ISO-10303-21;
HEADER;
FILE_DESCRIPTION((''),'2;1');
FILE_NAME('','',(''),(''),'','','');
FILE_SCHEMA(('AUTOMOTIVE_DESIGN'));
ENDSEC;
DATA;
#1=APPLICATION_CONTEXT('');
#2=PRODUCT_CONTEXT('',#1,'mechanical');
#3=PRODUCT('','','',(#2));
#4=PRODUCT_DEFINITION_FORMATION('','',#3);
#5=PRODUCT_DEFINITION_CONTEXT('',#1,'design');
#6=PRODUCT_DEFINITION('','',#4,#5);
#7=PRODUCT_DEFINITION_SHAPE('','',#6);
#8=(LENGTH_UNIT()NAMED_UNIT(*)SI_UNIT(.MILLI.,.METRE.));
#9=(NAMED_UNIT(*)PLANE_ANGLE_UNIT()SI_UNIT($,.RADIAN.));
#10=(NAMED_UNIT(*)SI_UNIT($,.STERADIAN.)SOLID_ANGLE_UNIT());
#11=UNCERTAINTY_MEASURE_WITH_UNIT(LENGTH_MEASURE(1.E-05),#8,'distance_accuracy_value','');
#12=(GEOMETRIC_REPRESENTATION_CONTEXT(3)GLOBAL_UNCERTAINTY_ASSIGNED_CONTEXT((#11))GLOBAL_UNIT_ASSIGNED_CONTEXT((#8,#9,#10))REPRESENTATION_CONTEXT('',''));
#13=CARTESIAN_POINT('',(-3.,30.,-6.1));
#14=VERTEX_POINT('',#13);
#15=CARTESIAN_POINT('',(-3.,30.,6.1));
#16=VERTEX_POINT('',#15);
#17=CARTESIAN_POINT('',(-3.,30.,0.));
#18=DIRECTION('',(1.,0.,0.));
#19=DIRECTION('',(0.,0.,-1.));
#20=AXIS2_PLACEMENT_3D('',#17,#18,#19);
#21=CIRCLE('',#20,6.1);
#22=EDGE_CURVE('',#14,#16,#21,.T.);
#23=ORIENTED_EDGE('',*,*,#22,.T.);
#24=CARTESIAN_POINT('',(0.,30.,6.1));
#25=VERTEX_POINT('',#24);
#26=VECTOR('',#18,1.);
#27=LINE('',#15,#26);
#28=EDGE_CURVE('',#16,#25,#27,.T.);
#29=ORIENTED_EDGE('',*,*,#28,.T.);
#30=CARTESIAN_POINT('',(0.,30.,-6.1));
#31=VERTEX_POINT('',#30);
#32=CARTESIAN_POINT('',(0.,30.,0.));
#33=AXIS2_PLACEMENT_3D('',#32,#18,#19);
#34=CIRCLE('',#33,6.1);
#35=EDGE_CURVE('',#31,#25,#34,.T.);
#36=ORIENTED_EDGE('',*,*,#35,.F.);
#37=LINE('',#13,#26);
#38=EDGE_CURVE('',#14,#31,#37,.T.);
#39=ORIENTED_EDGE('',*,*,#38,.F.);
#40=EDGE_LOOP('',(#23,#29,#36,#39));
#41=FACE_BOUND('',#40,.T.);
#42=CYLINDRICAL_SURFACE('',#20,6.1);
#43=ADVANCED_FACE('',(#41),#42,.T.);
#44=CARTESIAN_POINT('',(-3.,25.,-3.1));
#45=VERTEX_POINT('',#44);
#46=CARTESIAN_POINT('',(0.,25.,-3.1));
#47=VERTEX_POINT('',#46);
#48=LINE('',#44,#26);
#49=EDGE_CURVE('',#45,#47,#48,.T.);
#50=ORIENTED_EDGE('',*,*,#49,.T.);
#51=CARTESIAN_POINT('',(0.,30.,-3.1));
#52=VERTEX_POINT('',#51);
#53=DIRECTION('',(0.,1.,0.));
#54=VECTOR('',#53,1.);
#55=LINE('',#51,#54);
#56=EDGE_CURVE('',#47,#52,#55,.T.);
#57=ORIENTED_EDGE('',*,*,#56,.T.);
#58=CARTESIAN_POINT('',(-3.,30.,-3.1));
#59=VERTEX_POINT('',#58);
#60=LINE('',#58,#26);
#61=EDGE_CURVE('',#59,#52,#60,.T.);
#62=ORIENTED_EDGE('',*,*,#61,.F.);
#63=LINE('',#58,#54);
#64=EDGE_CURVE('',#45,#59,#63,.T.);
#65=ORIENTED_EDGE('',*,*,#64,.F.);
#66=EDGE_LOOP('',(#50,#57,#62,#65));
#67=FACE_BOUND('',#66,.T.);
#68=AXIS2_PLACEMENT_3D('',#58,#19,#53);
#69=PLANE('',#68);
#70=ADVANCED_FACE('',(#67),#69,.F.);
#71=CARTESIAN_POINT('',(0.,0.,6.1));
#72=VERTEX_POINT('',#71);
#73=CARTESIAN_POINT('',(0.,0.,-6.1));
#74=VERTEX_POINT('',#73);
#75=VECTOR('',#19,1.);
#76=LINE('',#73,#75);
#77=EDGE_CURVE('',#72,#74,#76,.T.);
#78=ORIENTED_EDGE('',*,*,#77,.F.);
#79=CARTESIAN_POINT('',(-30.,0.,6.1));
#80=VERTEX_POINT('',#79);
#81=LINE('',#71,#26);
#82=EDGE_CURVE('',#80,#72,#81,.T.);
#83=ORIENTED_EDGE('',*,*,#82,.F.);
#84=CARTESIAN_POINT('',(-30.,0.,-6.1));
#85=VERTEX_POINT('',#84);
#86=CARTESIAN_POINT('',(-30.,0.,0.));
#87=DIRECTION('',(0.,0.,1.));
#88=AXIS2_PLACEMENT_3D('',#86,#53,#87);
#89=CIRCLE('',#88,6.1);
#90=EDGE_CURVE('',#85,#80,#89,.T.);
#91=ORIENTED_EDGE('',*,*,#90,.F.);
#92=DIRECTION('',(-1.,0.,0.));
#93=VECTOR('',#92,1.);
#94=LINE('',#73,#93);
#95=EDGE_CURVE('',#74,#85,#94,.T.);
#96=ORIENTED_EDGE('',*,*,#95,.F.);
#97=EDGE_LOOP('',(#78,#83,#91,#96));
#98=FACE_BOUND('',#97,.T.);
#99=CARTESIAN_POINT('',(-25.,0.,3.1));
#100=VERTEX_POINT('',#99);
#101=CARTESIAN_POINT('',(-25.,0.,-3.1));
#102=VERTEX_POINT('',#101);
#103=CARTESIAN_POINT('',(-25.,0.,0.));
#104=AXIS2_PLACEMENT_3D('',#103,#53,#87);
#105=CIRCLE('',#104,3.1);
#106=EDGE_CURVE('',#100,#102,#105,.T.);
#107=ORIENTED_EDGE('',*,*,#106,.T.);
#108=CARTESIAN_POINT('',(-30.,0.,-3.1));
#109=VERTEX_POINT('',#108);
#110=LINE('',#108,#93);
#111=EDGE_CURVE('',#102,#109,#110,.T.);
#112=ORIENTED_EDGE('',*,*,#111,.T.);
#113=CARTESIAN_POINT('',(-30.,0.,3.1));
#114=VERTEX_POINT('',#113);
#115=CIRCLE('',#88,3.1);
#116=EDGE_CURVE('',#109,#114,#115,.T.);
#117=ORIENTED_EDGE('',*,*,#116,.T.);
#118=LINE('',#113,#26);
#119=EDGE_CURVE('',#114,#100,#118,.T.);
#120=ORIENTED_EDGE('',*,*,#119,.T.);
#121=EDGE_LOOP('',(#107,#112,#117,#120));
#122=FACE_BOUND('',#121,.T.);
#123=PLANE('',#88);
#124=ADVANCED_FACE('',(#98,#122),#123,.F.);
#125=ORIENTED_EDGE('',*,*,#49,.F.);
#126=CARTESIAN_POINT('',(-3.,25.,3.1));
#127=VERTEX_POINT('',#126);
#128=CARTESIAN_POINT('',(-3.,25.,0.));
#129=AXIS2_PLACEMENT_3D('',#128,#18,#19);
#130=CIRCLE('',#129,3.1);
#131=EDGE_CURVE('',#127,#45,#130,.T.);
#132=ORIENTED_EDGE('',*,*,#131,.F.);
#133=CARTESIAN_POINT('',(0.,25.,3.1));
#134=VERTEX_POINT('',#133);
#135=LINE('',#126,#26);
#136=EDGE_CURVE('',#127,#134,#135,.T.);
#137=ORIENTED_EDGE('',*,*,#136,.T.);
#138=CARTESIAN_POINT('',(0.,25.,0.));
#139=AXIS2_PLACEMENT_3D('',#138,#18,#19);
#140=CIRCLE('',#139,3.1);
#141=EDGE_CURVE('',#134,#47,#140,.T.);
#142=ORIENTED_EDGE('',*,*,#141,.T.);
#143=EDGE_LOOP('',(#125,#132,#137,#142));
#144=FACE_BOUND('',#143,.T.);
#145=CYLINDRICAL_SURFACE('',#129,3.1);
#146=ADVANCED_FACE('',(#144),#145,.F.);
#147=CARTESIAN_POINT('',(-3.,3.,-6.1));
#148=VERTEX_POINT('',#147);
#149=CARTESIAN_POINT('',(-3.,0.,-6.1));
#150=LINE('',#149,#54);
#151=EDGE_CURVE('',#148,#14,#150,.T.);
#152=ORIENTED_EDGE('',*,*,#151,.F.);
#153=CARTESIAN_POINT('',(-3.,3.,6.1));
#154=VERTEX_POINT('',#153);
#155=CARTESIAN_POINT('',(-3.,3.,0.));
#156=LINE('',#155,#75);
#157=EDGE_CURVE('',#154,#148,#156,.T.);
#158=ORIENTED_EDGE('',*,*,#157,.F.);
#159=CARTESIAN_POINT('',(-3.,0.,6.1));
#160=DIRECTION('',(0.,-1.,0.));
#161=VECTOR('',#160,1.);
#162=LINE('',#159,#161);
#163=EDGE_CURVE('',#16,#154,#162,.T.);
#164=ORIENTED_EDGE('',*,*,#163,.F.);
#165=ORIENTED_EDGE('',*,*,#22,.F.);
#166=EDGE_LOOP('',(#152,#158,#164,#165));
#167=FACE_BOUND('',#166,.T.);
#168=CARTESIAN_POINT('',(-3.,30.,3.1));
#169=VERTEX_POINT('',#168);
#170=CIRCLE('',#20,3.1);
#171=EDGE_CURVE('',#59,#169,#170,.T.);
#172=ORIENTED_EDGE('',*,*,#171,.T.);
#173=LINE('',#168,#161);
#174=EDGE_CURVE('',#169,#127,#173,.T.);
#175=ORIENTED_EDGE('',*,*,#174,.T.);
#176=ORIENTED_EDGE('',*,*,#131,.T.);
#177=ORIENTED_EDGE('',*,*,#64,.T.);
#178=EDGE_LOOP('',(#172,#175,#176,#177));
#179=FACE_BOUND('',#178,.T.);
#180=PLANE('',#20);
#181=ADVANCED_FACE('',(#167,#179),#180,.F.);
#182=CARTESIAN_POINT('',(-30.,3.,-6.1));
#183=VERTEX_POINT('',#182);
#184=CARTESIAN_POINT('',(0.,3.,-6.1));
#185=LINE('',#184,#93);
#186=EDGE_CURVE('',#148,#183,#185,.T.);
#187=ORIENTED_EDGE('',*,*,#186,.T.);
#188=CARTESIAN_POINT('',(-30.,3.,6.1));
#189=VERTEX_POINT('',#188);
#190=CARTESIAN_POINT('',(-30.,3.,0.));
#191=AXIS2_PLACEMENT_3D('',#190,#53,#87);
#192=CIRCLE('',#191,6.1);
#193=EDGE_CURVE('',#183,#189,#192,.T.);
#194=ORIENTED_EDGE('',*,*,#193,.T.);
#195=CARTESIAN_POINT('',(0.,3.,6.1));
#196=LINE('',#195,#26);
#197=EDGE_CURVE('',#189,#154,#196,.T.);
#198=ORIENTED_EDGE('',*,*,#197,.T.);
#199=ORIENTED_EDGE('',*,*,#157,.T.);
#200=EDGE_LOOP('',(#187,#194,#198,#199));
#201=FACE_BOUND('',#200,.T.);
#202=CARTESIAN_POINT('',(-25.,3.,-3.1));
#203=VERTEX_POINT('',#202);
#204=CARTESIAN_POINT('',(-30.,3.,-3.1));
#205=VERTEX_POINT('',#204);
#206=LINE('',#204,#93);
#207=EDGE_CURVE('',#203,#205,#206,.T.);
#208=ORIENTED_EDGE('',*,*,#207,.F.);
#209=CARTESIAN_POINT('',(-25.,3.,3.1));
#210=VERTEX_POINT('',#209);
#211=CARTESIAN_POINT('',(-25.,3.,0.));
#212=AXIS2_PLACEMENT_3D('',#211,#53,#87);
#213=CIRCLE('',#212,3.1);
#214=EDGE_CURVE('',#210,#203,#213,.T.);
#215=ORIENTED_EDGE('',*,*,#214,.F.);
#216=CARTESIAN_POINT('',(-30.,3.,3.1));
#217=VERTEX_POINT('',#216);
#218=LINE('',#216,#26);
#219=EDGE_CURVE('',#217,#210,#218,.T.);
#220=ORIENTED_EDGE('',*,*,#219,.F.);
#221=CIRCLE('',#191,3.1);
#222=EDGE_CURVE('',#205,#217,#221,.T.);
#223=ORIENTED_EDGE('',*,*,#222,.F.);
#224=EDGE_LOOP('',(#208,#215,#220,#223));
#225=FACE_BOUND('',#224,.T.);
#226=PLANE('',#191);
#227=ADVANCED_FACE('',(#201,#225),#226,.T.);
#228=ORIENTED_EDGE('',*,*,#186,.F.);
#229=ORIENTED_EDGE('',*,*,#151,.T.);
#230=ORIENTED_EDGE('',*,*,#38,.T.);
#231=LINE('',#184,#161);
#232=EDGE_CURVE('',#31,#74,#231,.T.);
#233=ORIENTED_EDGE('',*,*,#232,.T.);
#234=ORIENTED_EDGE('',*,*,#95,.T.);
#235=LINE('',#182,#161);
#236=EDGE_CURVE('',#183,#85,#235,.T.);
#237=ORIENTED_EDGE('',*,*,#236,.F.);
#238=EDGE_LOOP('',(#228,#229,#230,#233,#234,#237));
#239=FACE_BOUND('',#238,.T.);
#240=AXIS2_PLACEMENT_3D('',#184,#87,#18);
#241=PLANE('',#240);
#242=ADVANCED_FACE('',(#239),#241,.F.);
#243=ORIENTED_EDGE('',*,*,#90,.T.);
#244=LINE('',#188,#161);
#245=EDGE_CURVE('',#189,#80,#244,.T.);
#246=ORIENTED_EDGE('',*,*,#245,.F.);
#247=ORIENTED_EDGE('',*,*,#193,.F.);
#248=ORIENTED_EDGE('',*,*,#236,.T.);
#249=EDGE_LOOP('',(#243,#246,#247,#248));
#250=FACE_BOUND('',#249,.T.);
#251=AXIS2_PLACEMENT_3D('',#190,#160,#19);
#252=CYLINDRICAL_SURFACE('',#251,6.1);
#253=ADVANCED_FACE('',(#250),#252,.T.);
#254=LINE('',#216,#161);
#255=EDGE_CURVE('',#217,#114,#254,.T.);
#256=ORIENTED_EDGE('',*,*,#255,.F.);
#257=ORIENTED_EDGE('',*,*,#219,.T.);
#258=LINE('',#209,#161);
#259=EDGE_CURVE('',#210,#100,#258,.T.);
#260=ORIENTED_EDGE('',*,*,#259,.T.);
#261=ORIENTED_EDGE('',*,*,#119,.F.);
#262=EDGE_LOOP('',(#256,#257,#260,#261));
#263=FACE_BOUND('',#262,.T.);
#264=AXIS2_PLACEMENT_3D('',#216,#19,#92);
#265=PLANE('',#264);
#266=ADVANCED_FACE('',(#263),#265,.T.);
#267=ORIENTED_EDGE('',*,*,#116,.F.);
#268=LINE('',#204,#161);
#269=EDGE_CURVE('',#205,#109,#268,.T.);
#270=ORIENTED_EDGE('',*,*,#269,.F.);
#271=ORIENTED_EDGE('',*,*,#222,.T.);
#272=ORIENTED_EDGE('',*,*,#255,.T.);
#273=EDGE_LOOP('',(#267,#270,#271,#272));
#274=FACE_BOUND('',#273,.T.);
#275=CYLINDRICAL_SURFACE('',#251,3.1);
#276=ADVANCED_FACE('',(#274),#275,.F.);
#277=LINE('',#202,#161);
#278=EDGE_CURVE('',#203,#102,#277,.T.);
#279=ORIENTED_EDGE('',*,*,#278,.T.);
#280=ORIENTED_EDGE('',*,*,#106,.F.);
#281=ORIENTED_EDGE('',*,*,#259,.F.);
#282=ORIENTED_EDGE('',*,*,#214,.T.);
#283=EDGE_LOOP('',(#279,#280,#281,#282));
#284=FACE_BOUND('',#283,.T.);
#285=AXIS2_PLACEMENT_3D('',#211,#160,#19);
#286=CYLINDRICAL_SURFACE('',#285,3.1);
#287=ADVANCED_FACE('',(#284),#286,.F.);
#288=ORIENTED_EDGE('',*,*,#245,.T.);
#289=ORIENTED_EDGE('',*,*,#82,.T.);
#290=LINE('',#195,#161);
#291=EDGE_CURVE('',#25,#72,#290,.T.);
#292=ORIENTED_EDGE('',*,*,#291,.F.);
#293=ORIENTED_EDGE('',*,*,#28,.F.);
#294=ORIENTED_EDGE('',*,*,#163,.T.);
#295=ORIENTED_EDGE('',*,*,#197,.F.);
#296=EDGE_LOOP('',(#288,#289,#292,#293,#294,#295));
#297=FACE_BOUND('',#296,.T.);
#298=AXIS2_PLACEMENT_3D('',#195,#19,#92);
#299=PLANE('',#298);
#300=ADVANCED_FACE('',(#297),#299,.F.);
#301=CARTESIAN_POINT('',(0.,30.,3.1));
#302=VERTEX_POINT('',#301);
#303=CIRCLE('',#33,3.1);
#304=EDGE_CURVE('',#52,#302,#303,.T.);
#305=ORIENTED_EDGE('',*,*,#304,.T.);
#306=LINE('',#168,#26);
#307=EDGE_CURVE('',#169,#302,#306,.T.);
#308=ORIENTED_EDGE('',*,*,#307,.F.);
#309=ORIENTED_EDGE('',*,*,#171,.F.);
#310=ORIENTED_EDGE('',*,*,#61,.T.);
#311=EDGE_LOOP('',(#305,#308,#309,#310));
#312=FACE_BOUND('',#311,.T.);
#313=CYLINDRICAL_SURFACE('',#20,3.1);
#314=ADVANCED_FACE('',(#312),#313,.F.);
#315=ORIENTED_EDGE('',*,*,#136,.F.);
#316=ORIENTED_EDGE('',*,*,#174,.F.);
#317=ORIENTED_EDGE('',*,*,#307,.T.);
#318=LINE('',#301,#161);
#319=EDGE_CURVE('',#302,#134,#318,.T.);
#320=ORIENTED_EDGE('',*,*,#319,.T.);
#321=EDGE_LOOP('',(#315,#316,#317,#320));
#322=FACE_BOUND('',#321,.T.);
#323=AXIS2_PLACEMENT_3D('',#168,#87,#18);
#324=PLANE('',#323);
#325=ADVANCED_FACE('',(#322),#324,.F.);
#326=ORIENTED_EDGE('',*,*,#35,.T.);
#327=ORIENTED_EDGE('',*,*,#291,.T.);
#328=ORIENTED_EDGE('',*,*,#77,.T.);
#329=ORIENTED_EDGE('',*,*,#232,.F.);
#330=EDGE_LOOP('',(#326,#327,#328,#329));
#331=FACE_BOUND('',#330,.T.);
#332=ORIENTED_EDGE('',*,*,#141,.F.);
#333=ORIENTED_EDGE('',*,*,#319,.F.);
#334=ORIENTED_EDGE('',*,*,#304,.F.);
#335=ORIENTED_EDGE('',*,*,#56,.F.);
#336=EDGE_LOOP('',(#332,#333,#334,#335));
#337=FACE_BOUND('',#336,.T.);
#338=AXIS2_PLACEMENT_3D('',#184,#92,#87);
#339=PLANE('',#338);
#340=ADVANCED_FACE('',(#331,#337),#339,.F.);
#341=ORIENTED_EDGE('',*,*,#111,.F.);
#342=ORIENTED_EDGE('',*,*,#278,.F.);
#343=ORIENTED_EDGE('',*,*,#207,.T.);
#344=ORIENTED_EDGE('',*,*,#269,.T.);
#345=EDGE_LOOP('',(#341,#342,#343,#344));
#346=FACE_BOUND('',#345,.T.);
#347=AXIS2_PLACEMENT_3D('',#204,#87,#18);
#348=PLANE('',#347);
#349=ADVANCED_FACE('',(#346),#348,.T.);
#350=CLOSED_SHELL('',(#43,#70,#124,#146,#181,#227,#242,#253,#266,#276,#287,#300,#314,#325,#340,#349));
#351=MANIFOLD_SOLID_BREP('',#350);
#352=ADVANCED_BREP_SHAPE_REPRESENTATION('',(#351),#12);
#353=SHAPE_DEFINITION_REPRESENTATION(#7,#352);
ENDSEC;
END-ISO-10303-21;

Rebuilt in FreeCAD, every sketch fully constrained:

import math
import FreeCAD as App
import Part
import Sketcher
Q = App.Units.Quantity

doc = App.newDocument("Part")
body = doc.addObject("PartDesign::Body", "Body")

# Sketch on XZ plane
sketch1 = body.newObject("Sketcher::SketchObject", "Sketch")
sketch1.AttachmentSupport = (doc.getObject("XZ_Plane"), [""])
sketch1.MapMode = "FlatFace"
sketch1.addGeometry(Part.LineSegment(App.Vector(-30, 6.1, 0), App.Vector(0, 6.1, 0)), False)
sketch1.addGeometry(Part.LineSegment(App.Vector(0, 6.1, 0), App.Vector(0, -6.1, 0)), False)
sketch1.addGeometry(Part.LineSegment(App.Vector(0, -6.1, 0), App.Vector(-30, -6.1, 0)), False)
sketch1.addGeometry(Part.ArcOfCircle(Part.Circle(App.Vector(-30, 0, 0), App.Vector(0, 0, 1), 6.1), math.radians(90), math.radians(270)), False)
sketch1.addGeometry(Part.LineSegment(App.Vector(-30, -3.1, 0), App.Vector(-25, -3.1, 0)), False)
sketch1.addGeometry(Part.ArcOfCircle(Part.Circle(App.Vector(-25, 0, 0), App.Vector(0, 0, 1), 3.1), math.radians(-90), math.radians(90)), False)
sketch1.addGeometry(Part.LineSegment(App.Vector(-25, 3.1, 0), App.Vector(-30, 3.1, 0)), False)
sketch1.addGeometry(Part.ArcOfCircle(Part.Circle(App.Vector(-30, 0, 0), App.Vector(0, 0, 1), 3.1), math.radians(90), math.radians(270)), False)
sketch1.addConstraint(Sketcher.Constraint("Coincident", 0, 2, 1, 1))
sketch1.addConstraint(Sketcher.Constraint("Coincident", 1, 2, 2, 1))
sketch1.addConstraint(Sketcher.Constraint("Tangent", 2, 2, 3, 2))
sketch1.addConstraint(Sketcher.Constraint("Tangent", 3, 1, 0, 1))
sketch1.addConstraint(Sketcher.Constraint("Tangent", 4, 2, 5, 1))
sketch1.addConstraint(Sketcher.Constraint("Tangent", 5, 2, 6, 1))
sketch1.addConstraint(Sketcher.Constraint("Tangent", 6, 2, 7, 1))
sketch1.addConstraint(Sketcher.Constraint("Tangent", 7, 2, 4, 1))
sketch1.addConstraint(Sketcher.Constraint("Horizontal", 0))
sketch1.addConstraint(Sketcher.Constraint("Vertical", 1))
sketch1.addConstraint(Sketcher.Constraint("Horizontal", 2))
sketch1.addConstraint(Sketcher.Constraint("Horizontal", 4))
sketch1.addConstraint(Sketcher.Constraint("Horizontal", 6))
sketch1.addConstraint(Sketcher.Constraint("Coincident", 7, 3, 3, 3))
sketch1.addConstraint(Sketcher.Constraint("Symmetric", 0, 2, 1, 2, -1, 1))
sketch1.addConstraint(Sketcher.Constraint("Radius", 3, Q("6.1 mm")))
sketch1.addConstraint(Sketcher.Constraint("Radius", 5, Q("3.1 mm")))
sketch1.addConstraint(Sketcher.Constraint("DistanceX", 0, 1, 0, 2, Q("30 mm")))
sketch1.addConstraint(Sketcher.Constraint("DistanceX", 4, 1, 4, 2, Q("5 mm")))
pad1 = body.newObject("PartDesign::Pad", "Pad")
pad1.Profile = sketch1
pad1.Length = 3
pad1.Reversed = True

# Sketch on YZ plane
sketch2 = body.newObject("Sketcher::SketchObject", "Sketch001")
sketch2.AttachmentSupport = (doc.getObject("YZ_Plane"), [""])
sketch2.MapMode = "FlatFace"
sketch2.addGeometry(Part.LineSegment(App.Vector(30, 6.1, 0), App.Vector(0, 6.1, 0)), False)
sketch2.addGeometry(Part.LineSegment(App.Vector(0, 6.1, 0), App.Vector(0, -6.1, 0)), False)
sketch2.addGeometry(Part.LineSegment(App.Vector(0, -6.1, 0), App.Vector(30, -6.1, 0)), False)
sketch2.addGeometry(Part.ArcOfCircle(Part.Circle(App.Vector(30, 0, 0), App.Vector(0, 0, 1), 6.1), math.radians(-90), math.radians(90)), False)
sketch2.addGeometry(Part.LineSegment(App.Vector(30, -3.1, 0), App.Vector(25, -3.1, 0)), False)
sketch2.addGeometry(Part.ArcOfCircle(Part.Circle(App.Vector(25, 0, 0), App.Vector(0, 0, 1), 3.1), math.radians(90), math.radians(270)), False)
sketch2.addGeometry(Part.LineSegment(App.Vector(25, 3.1, 0), App.Vector(30, 3.1, 0)), False)
sketch2.addGeometry(Part.ArcOfCircle(Part.Circle(App.Vector(30, 0, 0), App.Vector(0, 0, 1), 3.1), math.radians(-90), math.radians(90)), False)
sketch2.addConstraint(Sketcher.Constraint("Coincident", 0, 2, 1, 1))
sketch2.addConstraint(Sketcher.Constraint("Coincident", 1, 2, 2, 1))
sketch2.addConstraint(Sketcher.Constraint("Tangent", 2, 2, 3, 1))
sketch2.addConstraint(Sketcher.Constraint("Tangent", 3, 2, 0, 1))
sketch2.addConstraint(Sketcher.Constraint("Tangent", 4, 2, 5, 2))
sketch2.addConstraint(Sketcher.Constraint("Tangent", 5, 1, 6, 1))
sketch2.addConstraint(Sketcher.Constraint("Tangent", 6, 2, 7, 2))
sketch2.addConstraint(Sketcher.Constraint("Tangent", 7, 1, 4, 1))
sketch2.addConstraint(Sketcher.Constraint("Horizontal", 0))
sketch2.addConstraint(Sketcher.Constraint("Vertical", 1))
sketch2.addConstraint(Sketcher.Constraint("Horizontal", 2))
sketch2.addConstraint(Sketcher.Constraint("Horizontal", 4))
sketch2.addConstraint(Sketcher.Constraint("Horizontal", 6))
sketch2.addConstraint(Sketcher.Constraint("Coincident", 7, 3, 3, 3))
sketch2.addConstraint(Sketcher.Constraint("Symmetric", 0, 2, 1, 2, -1, 1))
sketch2.addConstraint(Sketcher.Constraint("Radius", 3, Q("6.1 mm")))
sketch2.addConstraint(Sketcher.Constraint("Radius", 5, Q("3.1 mm")))
sketch2.addConstraint(Sketcher.Constraint("DistanceX", 0, 2, 0, 1, Q("30 mm")))
sketch2.addConstraint(Sketcher.Constraint("DistanceX", 4, 2, 4, 1, Q("5 mm")))
pad2 = body.newObject("PartDesign::Pad", "Pad001")
pad2.Profile = sketch2
pad2.Length = 3
pad2.Reversed = True

doc.recompute()
